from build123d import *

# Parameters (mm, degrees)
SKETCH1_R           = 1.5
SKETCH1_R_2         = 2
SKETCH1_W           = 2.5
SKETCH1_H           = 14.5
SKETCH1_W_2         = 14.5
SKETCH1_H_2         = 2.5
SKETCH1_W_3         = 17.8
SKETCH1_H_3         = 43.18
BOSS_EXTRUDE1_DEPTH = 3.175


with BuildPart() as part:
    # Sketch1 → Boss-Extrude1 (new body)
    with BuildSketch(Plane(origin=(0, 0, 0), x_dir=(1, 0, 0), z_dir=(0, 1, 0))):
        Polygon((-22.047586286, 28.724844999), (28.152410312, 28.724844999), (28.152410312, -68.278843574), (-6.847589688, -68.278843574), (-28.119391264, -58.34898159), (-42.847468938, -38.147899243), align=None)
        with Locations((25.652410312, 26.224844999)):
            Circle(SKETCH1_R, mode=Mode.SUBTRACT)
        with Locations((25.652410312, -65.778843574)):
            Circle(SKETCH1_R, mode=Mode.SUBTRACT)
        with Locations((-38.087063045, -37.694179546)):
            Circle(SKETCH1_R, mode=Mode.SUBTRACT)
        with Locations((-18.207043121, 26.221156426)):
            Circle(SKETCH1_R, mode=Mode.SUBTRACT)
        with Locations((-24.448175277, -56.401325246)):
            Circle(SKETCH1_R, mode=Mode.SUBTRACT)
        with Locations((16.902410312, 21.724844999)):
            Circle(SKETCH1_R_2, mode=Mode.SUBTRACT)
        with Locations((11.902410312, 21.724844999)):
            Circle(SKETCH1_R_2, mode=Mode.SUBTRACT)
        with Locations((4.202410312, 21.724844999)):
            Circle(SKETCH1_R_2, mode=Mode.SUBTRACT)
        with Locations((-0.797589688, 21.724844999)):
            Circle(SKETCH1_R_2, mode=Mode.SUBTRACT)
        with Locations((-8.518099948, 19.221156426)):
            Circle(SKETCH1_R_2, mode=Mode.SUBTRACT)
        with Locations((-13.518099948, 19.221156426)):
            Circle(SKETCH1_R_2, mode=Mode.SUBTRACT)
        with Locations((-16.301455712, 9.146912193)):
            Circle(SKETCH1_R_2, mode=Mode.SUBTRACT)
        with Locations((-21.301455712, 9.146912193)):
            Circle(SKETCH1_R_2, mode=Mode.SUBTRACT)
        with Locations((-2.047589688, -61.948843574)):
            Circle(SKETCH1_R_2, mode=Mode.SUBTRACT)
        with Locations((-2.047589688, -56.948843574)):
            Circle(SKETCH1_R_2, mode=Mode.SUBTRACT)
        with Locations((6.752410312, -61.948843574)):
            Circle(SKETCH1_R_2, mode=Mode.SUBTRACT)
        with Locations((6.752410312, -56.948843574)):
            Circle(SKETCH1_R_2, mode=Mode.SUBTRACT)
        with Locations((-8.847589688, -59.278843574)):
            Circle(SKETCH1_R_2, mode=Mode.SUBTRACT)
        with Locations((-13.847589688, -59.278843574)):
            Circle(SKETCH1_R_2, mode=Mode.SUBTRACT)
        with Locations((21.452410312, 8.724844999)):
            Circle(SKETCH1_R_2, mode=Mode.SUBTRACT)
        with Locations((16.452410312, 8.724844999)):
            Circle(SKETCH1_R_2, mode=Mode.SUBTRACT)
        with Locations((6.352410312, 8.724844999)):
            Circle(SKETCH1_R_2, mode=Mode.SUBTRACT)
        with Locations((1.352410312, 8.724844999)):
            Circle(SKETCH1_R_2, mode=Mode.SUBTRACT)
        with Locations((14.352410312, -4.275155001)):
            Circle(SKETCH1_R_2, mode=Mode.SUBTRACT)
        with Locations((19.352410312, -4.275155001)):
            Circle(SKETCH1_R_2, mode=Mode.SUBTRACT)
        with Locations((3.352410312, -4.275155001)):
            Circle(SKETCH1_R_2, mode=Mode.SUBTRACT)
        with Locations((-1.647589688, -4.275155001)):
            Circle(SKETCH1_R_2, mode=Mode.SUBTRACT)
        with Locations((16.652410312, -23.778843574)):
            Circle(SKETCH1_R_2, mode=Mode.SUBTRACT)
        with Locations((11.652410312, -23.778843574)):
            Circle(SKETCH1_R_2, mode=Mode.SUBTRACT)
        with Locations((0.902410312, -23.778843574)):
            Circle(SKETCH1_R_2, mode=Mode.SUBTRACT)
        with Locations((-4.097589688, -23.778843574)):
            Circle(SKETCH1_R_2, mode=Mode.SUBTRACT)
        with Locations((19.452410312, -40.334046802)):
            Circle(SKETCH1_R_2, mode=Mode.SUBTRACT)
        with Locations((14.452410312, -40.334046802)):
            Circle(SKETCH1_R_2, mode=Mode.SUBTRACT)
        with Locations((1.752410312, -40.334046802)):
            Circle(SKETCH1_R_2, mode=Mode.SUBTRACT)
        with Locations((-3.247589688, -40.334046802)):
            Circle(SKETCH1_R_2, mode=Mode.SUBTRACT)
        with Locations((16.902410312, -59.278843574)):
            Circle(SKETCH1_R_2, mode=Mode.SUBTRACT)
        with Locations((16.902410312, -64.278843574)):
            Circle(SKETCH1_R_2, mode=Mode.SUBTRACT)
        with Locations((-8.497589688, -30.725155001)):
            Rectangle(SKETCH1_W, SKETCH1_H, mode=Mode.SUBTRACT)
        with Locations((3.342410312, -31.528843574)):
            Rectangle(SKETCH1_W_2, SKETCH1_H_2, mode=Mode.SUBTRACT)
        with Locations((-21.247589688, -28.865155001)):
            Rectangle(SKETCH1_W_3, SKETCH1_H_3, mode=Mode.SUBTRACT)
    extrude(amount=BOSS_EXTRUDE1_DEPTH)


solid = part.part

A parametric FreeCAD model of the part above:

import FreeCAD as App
import Part
import Sketcher
from FreeCAD import Vector
Q = App.Units.Quantity

doc = App.newDocument("Part")
body = doc.addObject("PartDesign::Body", "Body")

# Sketch on XZ plane
sketch1 = body.newObject("Sketcher::SketchObject", "Sketch")
sketch1.AttachmentSupport = (doc.getObject("XZ_Plane"), [""])
sketch1.MapMode = "FlatFace"
sketch1.addGeometry([
    Part.LineSegment(Vector(28.15241, -28.724845, 0), Vector(-22.047586, -28.724845, 0)),  # 0
    Part.LineSegment(Vector(-22.047586, -28.724845, 0), Vector(-42.847469, 38.147899, 0)),  # 1
    Part.LineSegment(Vector(-42.847469, 38.147899, 0), Vector(-28.119391, 58.348982, 0)),  # 2
    Part.LineSegment(Vector(-28.119391, 58.348982, 0), Vector(-6.84759, 68.278844, 0)),  # 3
    Part.LineSegment(Vector(-6.84759, 68.278844, 0), Vector(28.15241, 68.278844, 0)),  # 4
    Part.LineSegment(Vector(28.15241, 68.278844, 0), Vector(28.15241, -28.724845, 0)),  # 5
    Part.Circle(Vector(25.65241, 65.778844, 0), Vector(0, 0, 1), 1.5),  # 6
    Part.Circle(Vector(16.90241, 64.278844, 0), Vector(0, 0, 1), 2),  # 7
    Part.Circle(Vector(16.90241, 59.278844, 0), Vector(0, 0, 1), 2),  # 8
    Part.Circle(Vector(6.75241, 61.948844, 0), Vector(0, 0, 1), 2),  # 9
    Part.Circle(Vector(6.75241, 56.948844, 0), Vector(0, 0, 1), 2),  # 10
    Part.Circle(Vector(-2.04759, 61.948844, 0), Vector(0, 0, 1), 2),  # 11
    Part.Circle(Vector(-2.04759, 56.948844, 0), Vector(0, 0, 1), 2),  # 12
    Part.Circle(Vector(19.45241, 40.334047, 0), Vector(0, 0, 1), 2),  # 13
    Part.Circle(Vector(14.45241, 40.334047, 0), Vector(0, 0, 1), 2),  # 14
    Part.Circle(Vector(16.65241, 23.778844, 0), Vector(0, 0, 1), 2),  # 15
    Part.Circle(Vector(11.65241, 23.778844, 0), Vector(0, 0, 1), 2),  # 16
    Part.Circle(Vector(1.75241, 40.334047, 0), Vector(0, 0, 1), 2),  # 17
    Part.Circle(Vector(-3.24759, 40.334047, 0), Vector(0, 0, 1), 2),  # 18
    Part.LineSegment(Vector(-3.90759, 32.778844, 0), Vector(-3.90759, 30.278844, 0)),  # 19
    Part.LineSegment(Vector(-3.90759, 30.278844, 0), Vector(10.59241, 30.278844, 0)),  # 20
    Part.LineSegment(Vector(10.59241, 30.278844, 0), Vector(10.59241, 32.778844, 0)),  # 21
    Part.LineSegment(Vector(10.59241, 32.778844, 0), Vector(-3.90759, 32.778844, 0)),  # 22
    Part.Circle(Vector(0.90241, 23.778844, 0), Vector(0, 0, 1), 2),  # 23
    Part.Circle(Vector(-4.09759, 23.778844, 0), Vector(0, 0, 1), 2),  # 24
    Part.Circle(Vector(-8.84759, 59.278844, 0), Vector(0, 0, 1), 2),  # 25
    Part.Circle(Vector(-13.84759, 59.278844, 0), Vector(0, 0, 1), 2),  # 26
    Part.Circle(Vector(-24.448175, 56.401325, 0), Vector(0, 0, 1), 1.5),  # 27
    Part.LineSegment(Vector(-9.74759, 37.975155, 0), Vector(-9.74759, 23.475155, 0)),  # 28
    Part.LineSegment(Vector(-9.74759, 23.475155, 0), Vector(-7.24759, 23.475155, 0)),  # 29
    Part.LineSegment(Vector(-7.24759, 23.475155, 0), Vector(-7.24759, 37.975155, 0)),  # 30
    Part.LineSegment(Vector(-7.24759, 37.975155, 0), Vector(-9.74759, 37.975155, 0)),  # 31
    Part.LineSegment(Vector(-30.14759, 50.455155, 0), Vector(-30.14759, 7.275155, 0)),  # 32
    Part.LineSegment(Vector(-30.14759, 7.275155, 0), Vector(-12.34759, 7.275155, 0)),  # 33
    Part.LineSegment(Vector(-12.34759, 7.275155, 0), Vector(-12.34759, 50.455155, 0)),  # 34
    Part.LineSegment(Vector(-12.34759, 50.455155, 0), Vector(-30.14759, 50.455155, 0)),  # 35
    Part.Circle(Vector(-38.087063, 37.69418, 0), Vector(0, 0, 1), 1.5),  # 36
    Part.Circle(Vector(19.35241, 4.275155, 0), Vector(0, 0, 1), 2),  # 37
    Part.Circle(Vector(14.35241, 4.275155, 0), Vector(0, 0, 1), 2),  # 38
    Part.Circle(Vector(3.35241, 4.275155, 0), Vector(0, 0, 1), 2),  # 39
    Part.Circle(Vector(-1.64759, 4.275155, 0), Vector(0, 0, 1), 2),  # 40
    Part.Circle(Vector(21.45241, -8.724845, 0), Vector(0, 0, 1), 2),  # 41
    Part.Circle(Vector(16.45241, -8.724845, 0), Vector(0, 0, 1), 2),  # 42
    Part.Circle(Vector(25.65241, -26.224845, 0), Vector(0, 0, 1), 1.5),  # 43
    Part.Circle(Vector(16.90241, -21.724845, 0), Vector(0, 0, 1), 2),  # 44
    Part.Circle(Vector(11.90241, -21.724845, 0), Vector(0, 0, 1), 2),  # 45
    Part.Circle(Vector(6.35241, -8.724845, 0), Vector(0, 0, 1), 2),  # 46
    Part.Circle(Vector(1.35241, -8.724845, 0), Vector(0, 0, 1), 2),  # 47
    Part.Circle(Vector(4.20241, -21.724845, 0), Vector(0, 0, 1), 2),  # 48
    Part.Circle(Vector(-0.79759, -21.724845, 0), Vector(0, 0, 1), 2),  # 49
    Part.Circle(Vector(-16.301456, -9.146912, 0), Vector(0, 0, 1), 2),  # 50
    Part.Circle(Vector(-21.301456, -9.146912, 0), Vector(0, 0, 1), 2),  # 51
    Part.Circle(Vector(-8.5181, -19.221156, 0), Vector(0, 0, 1), 2),  # 52
    Part.Circle(Vector(-13.5181, -19.221156, 0), Vector(0, 0, 1), 2),  # 53
    Part.Circle(Vector(-18.207043, -26.221156, 0), Vector(0, 0, 1), 1.5),  # 54
], False)
sketch1.addConstraint([
    Sketcher.Constraint("Coincident", 0, 2, 1, 1),
    Sketcher.Constraint("Coincident", 1, 2, 2, 1),
    Sketcher.Constraint("Coincident", 2, 2, 3, 1),
    Sketcher.Constraint("Coincident", 3, 2, 4, 1),
    Sketcher.Constraint("Coincident", 4, 2, 5, 1),
    Sketcher.Constraint("Coincident", 5, 2, 0, 1),
    Sketcher.Constraint("Coincident", 19, 2, 20, 1),
    Sketcher.Constraint("Coincident", 20, 2, 21, 1),
    Sketcher.Constraint("Coincident", 21, 2, 22, 1),
    Sketcher.Constraint("Coincident", 22, 2, 19, 1),
    Sketcher.Constraint("Coincident", 28, 2, 29, 1),
    Sketcher.Constraint("Coincident", 29, 2, 30, 1),
    Sketcher.Constraint("Coincident", 30, 2, 31, 1),
    Sketcher.Constraint("Coincident", 31, 2, 28, 1),
    Sketcher.Constraint("Coincident", 32, 2, 33, 1),
    Sketcher.Constraint("Coincident", 33, 2, 34, 1),
    Sketcher.Constraint("Coincident", 34, 2, 35, 1),
    Sketcher.Constraint("Coincident", 35, 2, 32, 1),
    Sketcher.Constraint("Horizontal", 0),
    Sketcher.Constraint("Horizontal", 4),
    Sketcher.Constraint("Vertical", 5),
    Sketcher.Constraint("Vertical", 19),
    Sketcher.Constraint("Horizontal", 20),
    Sketcher.Constraint("Vertical", 21),
    Sketcher.Constraint("Horizontal", 22),
    Sketcher.Constraint("Vertical", 28),
    Sketcher.Constraint("Horizontal", 29),
    Sketcher.Constraint("Vertical", 30),
    Sketcher.Constraint("Horizontal", 31),
    Sketcher.Constraint("Vertical", 32),
    Sketcher.Constraint("Horizontal", 33),
    Sketcher.Constraint("Vertical", 34),
    Sketcher.Constraint("Horizontal", 35),
    Sketcher.Constraint("Equal", 7, 8),
    Sketcher.Constraint("Equal", 8, 9),
    Sketcher.Constraint("Equal", 9, 10),
    Sketcher.Constraint("Equal", 10, 11),
    Sketcher.Constraint("Equal", 11, 12),
    Sketcher.Constraint("Equal", 12, 13),
    Sketcher.Constraint("Equal", 13, 14),
    Sketcher.Constraint("Equal", 14, 15),
    Sketcher.Constraint("Equal", 15, 16),
    Sketcher.Constraint("Equal", 16, 17),
    Sketcher.Constraint("Equal", 17, 18),
    Sketcher.Constraint("Equal", 18, 23),
    Sketcher.Constraint("Equal", 23, 24),
    Sketcher.Constraint("Equal", 24, 25),
    Sketcher.Constraint("Equal", 25, 26),
    Sketcher.Constraint("Equal", 6, 27),
    Sketcher.Constraint("Equal", 27, 36),
    Sketcher.Constraint("Equal", 26, 37),
    Sketcher.Constraint("Equal", 37, 38),
    Sketcher.Constraint("Equal", 38, 39),
    Sketcher.Constraint("Equal", 39, 40),
    Sketcher.Constraint("Equal", 40, 41),
    Sketcher.Constraint("Equal", 41, 42),
    Sketcher.Constraint("Equal", 36, 43),
    Sketcher.Constraint("Equal", 42, 44),
    Sketcher.Constraint("Equal", 44, 45),
    Sketcher.Constraint("Equal", 45, 46),
    Sketcher.Constraint("Equal", 46, 47),
    Sketcher.Constraint("Equal", 47, 48),
    Sketcher.Constraint("Equal", 48, 49),
    Sketcher.Constraint("Equal", 49, 50),
    Sketcher.Constraint("Equal", 50, 51),
    Sketcher.Constraint("Equal", 51, 52),
    Sketcher.Constraint("Equal", 52, 53),
    Sketcher.Constraint("Equal", 43, 54),
    Sketcher.Constraint("Horizontal", 9, 3, 11, 3),
    Sketcher.Constraint("Horizontal", 10, 3, 12, 3),
    Sketcher.Constraint("Horizontal", 13, 3, 14, 3),
    Sketcher.Constraint("Horizontal", 15, 3, 16, 3),
    Sketcher.Constraint("Horizontal", 14, 3, 17, 3),
    Sketcher.Constraint("Horizontal", 17, 3, 18, 3),
    Sketcher.Constraint("Horizontal", 16, 3, 23, 3),
    Sketcher.Constraint("Horizontal", 23, 3, 24, 3),
    Sketcher.Constraint("Horizontal", 8, 3, 25, 3),
    Sketcher.Constraint("Horizontal", 25, 3, 26, 3),
    Sketcher.Constraint("Horizontal", 37, 3, 38, 3),
    Sketcher.Constraint("Horizontal", 38, 3, 39, 3),
    Sketcher.Constraint("Horizontal", 39, 3, 40, 3),
    Sketcher.Constraint("Horizontal", 41, 3, 42, 3),
    Sketcher.Constraint("Horizontal", 44, 3, 45, 3),
    Sketcher.Constraint("Horizontal", 42, 3, 46, 3),
    Sketcher.Constraint("Horizontal", 46, 3, 47, 3),
    Sketcher.Constraint("Horizontal", 45, 3, 48, 3),
    Sketcher.Constraint("Horizontal", 48, 3, 49, 3),
    Sketcher.Constraint("Horizontal", 50, 3, 51, 3),
    Sketcher.Constraint("Horizontal", 52, 3, 53, 3),
    Sketcher.Constraint("Vertical", 7, 3, 8, 3),
    Sketcher.Constraint("Vertical", 9, 3, 10, 3),
    Sketcher.Constraint("Vertical", 11, 3, 12, 3),
    Sketcher.Constraint("Vertical", 6, 3, 43, 3),
    Sketcher.Constraint("Vertical", 8, 3, 44, 3),
    Sketcher.Constraint("Equal", 31, 19),
    Sketcher.Constraint("Equal", 22, 28),
    Sketcher.Constraint("Diameter", 6, Q("3 mm")),
    Sketcher.Constraint("Diameter", 7, Q("4 mm")),
    Sketcher.Constraint("DistanceX", 4, 1, 4, 2, Q("35 mm")),
    Sketcher.Constraint("Distance", 2, Q("25 mm")),
    Sketcher.Constraint("DistanceX", 20, 1, 20, 2, Q("14.5 mm")),
    Sketcher.Constraint("DistanceX", 29, 1, 29, 2, Q("2.5 mm")),
    Sketcher.Constraint("DistanceX", 33, 1, 33, 2, Q("17.8 mm")),
    Sketcher.Constraint("DistanceY", 8, 3, 7, 3, Q("5 mm")),
    Sketcher.Constraint("DistanceY", 10, 3, 9, 3, Q("5 mm")),
    Sketcher.Constraint("DistanceX", 14, 3, 13, 3, Q("5 mm")),
    Sketcher.Constraint("DistanceX", 16, 3, 15, 3, Q("5 mm")),
    Sketcher.Constraint("DistanceX", 17, 3, 10, 3, Q("5 mm")),
    Sketcher.Constraint("DistanceX", 18, 3, 17, 3, Q("5 mm")),
    Sketcher.Constraint("DistanceX", 24, 3, 23, 3, Q("5 mm")),
    Sketcher.Constraint("DistanceX", 26, 3, 25, 3, Q("5 mm")),
    Sketcher.Constraint("DistanceX", 38, 3, 37, 3, Q("5 mm")),
    Sketcher.Constraint("DistanceX", 39, 3, 38, 3, Q("11 mm")),
    Sketcher.Constraint("DistanceX", 40, 3, 39, 3, Q("5 mm")),
    Sketcher.Constraint("DistanceY", 41, 3, 37, 3, Q("13 mm")),
    Sketcher.Constraint("DistanceX", 42, 3, 41, 3, Q("5 mm")),
    Sketcher.Constraint("DistanceY", 44, 3, 42, 3, Q("13 mm")),
    Sketcher.Constraint("DistanceX", 45, 3, 44, 3, Q("5 mm")),
    Sketcher.Constraint("DistanceX", 39, 3, 46, 3, Q("3 mm")),
    Sketcher.Constraint("DistanceX", 47, 3, 46, 3, Q("5 mm")),
    Sketcher.Constraint("DistanceX", 49, 3, 48, 3, Q("5 mm")),
    Sketcher.Constraint("DistanceX", 51, 3, 50, 3, Q("5 mm")),
    Sketcher.Constraint("DistanceX", 53, 3, 52, 3, Q("5 mm")),
    Sketcher.Constraint("DistanceY", 54, 3, 53, 3, Q("7 mm")),
    Sketcher.Constraint("DistanceX", 25, 3, 3, 2, Q("2 mm")),
    Sketcher.Constraint("DistanceY", 25, 3, 3, 2, Q("9 mm")),
    Sketcher.Constraint("DistanceY", 5, 2, 44, 3, Q("7 mm")),
    Sketcher.Constraint("DistanceY", 16, 3, 21, 2, Q("9 mm")),
    Sketcher.Constraint("DistanceX", 30, 2, 18, 3, Q("4 mm")),
    Sketcher.Constraint("DistanceY", 40, 3, 32, 2, Q("3 mm")),
    Sketcher.Constraint("DistanceY", 32, 2, 32, 1, Q("43.18 mm")),
    Sketcher.Constraint("DistanceY", 7, 3, 6, 3, Q("1.5 mm")),
    Sketcher.Constraint("DistanceX", 9, 3, 6, 3, Q("18.9 mm")),
    Sketcher.Constraint("DistanceX", 11, 3, 9, 3, Q("8.8 mm")),
    Sketcher.Constraint("DistanceX", 10, 3, 13, 3, Q("12.7 mm")),
    Sketcher.Constraint("DistanceX", 14, 3, 15, 3, Q("2.2 mm")),
    Sketcher.Constraint("DistanceY", 15, 3, 8, 3, Q("35.5 mm")),
    Sketcher.Constraint("DistanceX", 25, 3, 12, 3, Q("6.8 mm")),
    Sketcher.Constraint("DistanceX", 15, 3, 37, 3, Q("2.7 mm")),
    Sketcher.Constraint("DistanceX", 37, 3, 41, 3, Q("2.1 mm")),
    Sketcher.Constraint("DistanceY", 43, 3, 41, 3, Q("17.5 mm")),
    Sketcher.Constraint("DistanceX", 48, 3, 45, 3, Q("7.7 mm")),
    Sketcher.Constraint("DistanceX", 32, 2, 28, 2, Q("20.4 mm")),
    Sketcher.Constraint("DistanceY", 32, 2, 28, 2, Q("16.2 mm")),
    Sketcher.Constraint("DistanceX", 7, 3, 6, 3, Q("8.75 mm")),
    Sketcher.Constraint("DistanceY", 9, 3, 7, 3, Q("2.33 mm")),
    Sketcher.Constraint("DistanceX", 23, 3, 16, 3, Q("10.75 mm")),
    Sketcher.Constraint("DistanceX", 24, 3, 19, 2, Q("0.19 mm")),
    Sketcher.Constraint("DistanceY", 5, 2, 5, 1, Q("97.003689 mm")),
    Sketcher.Constraint("DistanceX", 52, 3, -1, 1, Q("8.5181 mm")),
    Sketcher.Constraint("DistanceY", -1, 1, 1, 2, Q("38.147899 mm")),
    Sketcher.Constraint("DistanceX", 2, 2, 26, 3, Q("14.271802 mm")),
    Sketcher.Constraint("DistanceX", 0, 2, 0, 1, Q("50.199997 mm")),
    Sketcher.Constraint("DistanceX", -1, 1, 6, 3, Q("25.65241 mm")),
    Sketcher.Constraint("DistanceY", -1, 1, 36, 3, Q("37.69418 mm")),
    Sketcher.Constraint("DistanceX", 1, 2, -1, 1, Q("42.847469 mm")),
    Sketcher.Constraint("DistanceY", 27, 3, 26, 3, Q("2.877518 mm")),
    Sketcher.Constraint("DistanceY", 18, 3, 27, 3, Q("16.067278 mm")),
    Sketcher.Constraint("DistanceY", 49, 3, 52, 3, Q("2.503689 mm")),
    Sketcher.Constraint("DistanceX", 0, 2, 51, 3, Q("0.746131 mm")),
    Sketcher.Constraint("DistanceY", 2, 2, 26, 3, Q("0.929862 mm")),
    Sketcher.Constraint("DistanceX", 36, 3, 2, 2, Q("9.967672 mm")),
    Sketcher.Constraint("DistanceX", 27, 3, -1, 1, Q("24.448175 mm")),
    Sketcher.Constraint("DistanceY", 50, 3, -1, 1, Q("9.146912 mm")),
    Sketcher.Constraint("DistanceX", 54, 3, -1, 1, Q("18.207043 mm")),
])
pad1 = body.newObject("PartDesign::Pad", "Pad")
pad1.Profile = sketch1
pad1.Length = 3.175
pad1.Reversed = True

doc.recompute()
